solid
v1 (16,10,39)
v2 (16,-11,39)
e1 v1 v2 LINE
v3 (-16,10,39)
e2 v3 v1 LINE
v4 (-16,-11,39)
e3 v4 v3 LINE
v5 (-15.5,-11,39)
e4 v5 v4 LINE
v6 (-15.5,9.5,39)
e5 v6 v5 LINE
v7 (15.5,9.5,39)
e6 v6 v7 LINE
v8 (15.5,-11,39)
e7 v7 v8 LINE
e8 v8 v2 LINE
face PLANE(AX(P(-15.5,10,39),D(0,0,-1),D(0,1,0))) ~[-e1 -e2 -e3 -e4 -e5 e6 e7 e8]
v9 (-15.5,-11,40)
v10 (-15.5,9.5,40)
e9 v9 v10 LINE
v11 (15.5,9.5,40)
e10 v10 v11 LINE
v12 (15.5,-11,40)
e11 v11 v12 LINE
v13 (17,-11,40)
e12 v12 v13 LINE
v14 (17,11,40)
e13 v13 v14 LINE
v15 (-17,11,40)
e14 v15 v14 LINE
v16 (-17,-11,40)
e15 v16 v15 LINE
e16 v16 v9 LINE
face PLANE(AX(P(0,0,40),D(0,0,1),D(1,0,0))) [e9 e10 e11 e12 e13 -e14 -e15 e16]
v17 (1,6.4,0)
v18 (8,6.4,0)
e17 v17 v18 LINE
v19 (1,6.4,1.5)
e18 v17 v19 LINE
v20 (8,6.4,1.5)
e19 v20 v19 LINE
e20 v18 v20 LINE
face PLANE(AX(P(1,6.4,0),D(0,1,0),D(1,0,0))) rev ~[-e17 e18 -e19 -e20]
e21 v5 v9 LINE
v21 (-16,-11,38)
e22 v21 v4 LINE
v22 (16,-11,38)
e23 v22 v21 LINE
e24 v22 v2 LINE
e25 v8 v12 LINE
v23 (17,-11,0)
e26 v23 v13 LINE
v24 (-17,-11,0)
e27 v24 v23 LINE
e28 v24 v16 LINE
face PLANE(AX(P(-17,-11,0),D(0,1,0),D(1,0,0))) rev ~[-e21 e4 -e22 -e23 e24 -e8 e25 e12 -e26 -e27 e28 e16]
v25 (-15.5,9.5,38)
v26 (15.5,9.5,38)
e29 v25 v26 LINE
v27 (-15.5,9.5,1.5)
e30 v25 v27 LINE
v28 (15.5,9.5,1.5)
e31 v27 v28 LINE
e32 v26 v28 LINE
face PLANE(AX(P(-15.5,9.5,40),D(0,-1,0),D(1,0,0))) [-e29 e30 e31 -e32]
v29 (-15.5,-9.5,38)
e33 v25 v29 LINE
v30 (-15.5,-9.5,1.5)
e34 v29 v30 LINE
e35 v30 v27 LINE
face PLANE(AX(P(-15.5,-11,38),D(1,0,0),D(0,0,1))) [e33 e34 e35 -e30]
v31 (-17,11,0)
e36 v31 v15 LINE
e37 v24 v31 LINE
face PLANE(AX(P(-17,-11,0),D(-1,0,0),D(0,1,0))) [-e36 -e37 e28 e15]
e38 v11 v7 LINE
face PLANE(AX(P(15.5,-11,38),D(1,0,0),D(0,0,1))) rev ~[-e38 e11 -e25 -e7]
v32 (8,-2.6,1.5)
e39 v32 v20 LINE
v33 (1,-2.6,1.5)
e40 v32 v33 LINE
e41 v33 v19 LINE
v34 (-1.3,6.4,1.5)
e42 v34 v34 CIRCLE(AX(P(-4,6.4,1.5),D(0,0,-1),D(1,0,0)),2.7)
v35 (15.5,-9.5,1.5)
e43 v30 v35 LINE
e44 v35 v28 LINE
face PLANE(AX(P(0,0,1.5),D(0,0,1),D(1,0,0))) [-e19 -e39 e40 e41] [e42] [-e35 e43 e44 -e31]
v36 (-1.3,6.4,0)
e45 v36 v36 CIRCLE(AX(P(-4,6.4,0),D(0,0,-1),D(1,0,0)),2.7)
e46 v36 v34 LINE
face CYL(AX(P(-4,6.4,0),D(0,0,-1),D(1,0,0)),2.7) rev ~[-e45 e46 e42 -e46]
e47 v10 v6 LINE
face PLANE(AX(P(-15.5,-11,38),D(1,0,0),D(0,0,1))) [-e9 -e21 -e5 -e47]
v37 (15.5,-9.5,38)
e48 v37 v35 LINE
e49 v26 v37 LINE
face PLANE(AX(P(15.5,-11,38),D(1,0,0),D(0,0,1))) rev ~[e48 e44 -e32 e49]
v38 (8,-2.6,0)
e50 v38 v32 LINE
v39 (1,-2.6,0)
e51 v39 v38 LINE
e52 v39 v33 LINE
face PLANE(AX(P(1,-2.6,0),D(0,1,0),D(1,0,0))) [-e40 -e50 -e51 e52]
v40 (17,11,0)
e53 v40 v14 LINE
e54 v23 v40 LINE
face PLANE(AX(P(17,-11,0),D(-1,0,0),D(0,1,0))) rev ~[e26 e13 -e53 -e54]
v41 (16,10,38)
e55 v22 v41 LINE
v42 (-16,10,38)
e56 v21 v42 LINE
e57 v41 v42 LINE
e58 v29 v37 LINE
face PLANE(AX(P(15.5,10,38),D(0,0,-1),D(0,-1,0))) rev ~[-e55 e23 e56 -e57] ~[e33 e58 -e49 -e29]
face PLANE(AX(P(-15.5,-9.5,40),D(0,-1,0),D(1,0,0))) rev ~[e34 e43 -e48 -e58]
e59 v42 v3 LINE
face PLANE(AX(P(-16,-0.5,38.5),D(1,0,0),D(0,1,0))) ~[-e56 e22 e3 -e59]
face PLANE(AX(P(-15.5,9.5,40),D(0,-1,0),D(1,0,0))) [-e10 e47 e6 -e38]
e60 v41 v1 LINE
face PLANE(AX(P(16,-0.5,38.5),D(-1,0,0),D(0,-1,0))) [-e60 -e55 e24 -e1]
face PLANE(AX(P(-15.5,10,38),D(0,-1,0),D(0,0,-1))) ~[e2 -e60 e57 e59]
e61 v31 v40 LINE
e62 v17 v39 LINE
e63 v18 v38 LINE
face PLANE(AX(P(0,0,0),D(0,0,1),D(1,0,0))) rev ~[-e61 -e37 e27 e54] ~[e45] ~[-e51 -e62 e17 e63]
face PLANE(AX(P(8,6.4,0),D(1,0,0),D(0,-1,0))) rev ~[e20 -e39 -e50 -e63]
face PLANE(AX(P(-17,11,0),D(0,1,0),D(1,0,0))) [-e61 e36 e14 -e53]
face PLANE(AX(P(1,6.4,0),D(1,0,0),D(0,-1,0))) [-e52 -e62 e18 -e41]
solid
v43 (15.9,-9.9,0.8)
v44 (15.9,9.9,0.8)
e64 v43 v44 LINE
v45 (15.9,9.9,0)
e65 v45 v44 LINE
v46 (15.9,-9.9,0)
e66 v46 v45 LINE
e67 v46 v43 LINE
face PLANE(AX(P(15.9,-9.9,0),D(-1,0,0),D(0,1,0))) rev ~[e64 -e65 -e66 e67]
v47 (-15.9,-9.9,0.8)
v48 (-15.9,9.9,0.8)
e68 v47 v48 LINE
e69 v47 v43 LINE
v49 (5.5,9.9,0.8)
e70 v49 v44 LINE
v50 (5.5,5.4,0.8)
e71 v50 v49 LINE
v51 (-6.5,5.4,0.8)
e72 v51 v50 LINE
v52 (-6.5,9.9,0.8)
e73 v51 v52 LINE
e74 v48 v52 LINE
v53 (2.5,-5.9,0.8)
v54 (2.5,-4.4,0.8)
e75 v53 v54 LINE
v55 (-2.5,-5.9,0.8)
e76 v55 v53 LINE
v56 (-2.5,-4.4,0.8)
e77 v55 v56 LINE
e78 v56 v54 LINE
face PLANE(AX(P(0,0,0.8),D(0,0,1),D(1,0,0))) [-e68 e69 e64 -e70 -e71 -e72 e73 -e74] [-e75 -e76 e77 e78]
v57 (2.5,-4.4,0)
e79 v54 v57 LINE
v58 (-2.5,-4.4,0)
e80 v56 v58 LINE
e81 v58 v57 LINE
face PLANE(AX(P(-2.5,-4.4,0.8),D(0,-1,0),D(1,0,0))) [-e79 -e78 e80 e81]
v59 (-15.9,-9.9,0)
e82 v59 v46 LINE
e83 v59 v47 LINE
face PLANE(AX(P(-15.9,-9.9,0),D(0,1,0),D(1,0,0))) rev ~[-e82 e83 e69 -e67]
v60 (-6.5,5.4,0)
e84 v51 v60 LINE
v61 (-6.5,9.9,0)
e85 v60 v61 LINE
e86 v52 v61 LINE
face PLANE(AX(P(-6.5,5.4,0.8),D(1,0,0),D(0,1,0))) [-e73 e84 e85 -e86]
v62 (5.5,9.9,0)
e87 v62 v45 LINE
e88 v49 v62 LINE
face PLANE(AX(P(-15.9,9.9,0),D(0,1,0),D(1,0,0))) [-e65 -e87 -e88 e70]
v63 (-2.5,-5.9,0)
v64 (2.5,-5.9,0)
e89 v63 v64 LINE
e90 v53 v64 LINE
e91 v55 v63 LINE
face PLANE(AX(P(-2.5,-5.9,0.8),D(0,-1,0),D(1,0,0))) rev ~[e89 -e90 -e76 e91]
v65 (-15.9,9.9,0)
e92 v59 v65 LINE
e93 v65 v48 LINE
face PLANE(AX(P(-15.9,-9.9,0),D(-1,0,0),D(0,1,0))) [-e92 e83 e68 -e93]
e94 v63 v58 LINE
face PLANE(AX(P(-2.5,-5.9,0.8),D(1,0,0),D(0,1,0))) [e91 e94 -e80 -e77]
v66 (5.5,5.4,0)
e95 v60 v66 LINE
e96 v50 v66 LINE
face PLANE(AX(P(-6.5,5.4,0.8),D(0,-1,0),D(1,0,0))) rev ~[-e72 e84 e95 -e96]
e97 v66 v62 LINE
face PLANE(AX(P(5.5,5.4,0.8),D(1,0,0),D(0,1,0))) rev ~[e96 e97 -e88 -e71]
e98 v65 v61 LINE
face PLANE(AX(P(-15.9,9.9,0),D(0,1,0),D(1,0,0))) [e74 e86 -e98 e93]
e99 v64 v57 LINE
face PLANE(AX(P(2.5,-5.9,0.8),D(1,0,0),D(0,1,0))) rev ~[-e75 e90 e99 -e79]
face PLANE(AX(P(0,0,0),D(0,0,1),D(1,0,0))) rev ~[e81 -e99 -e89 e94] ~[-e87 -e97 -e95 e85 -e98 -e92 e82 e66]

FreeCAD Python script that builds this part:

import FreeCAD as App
import Part
import Sketcher

doc = App.newDocument("Part")
body = doc.addObject("PartDesign::Body", "Body")

# Sketch on XY plane
sketch1 = doc.addObject("Sketcher::SketchObject", "Sketch")
body.addObject(sketch1)
sketch1.AttachmentSupport = (doc.XY_Plane, [""])
sketch1.MapMode = "FlatFace"
sketch1.addGeometry([
    Part.LineSegment(App.Vector(-17, 11, 0), App.Vector(-17, -11, 0)),
    Part.LineSegment(App.Vector(-17, -11, 0), App.Vector(17, -11, 0)),
    Part.LineSegment(App.Vector(17, -11, 0), App.Vector(17, 11, 0)),
    Part.LineSegment(App.Vector(17, 11, 0), App.Vector(-17, 11, 0)),
], False)
sketch1.addConstraint([
    Sketcher.Constraint("Coincident", 0, 2, 1, 1),
    Sketcher.Constraint("Coincident", 1, 2, 2, 1),
    Sketcher.Constraint("Coincident", 2, 2, 3, 1),
    Sketcher.Constraint("Coincident", 3, 2, 0, 1),
    Sketcher.Constraint("Vertical", 0),
    Sketcher.Constraint("Horizontal", 1),
    Sketcher.Constraint("Vertical", 2),
    Sketcher.Constraint("Horizontal", 3),
    Sketcher.Constraint("Symmetric", 0, 2, 2, 2, -1, 1),
    Sketcher.Constraint("DistanceX", 1, 1, 1, 2, 34.0),
    Sketcher.Constraint("DistanceY", 0, 2, 0, 1, 22.0),
])
pad1 = doc.addObject("PartDesign::Pad", "Pad")
body.addObject(pad1)
pad1.Profile = sketch1
pad1.Length = 40

# Sketch on XY plane
sketch2 = doc.addObject("Sketcher::SketchObject", "Sketch001")
body.addObject(sketch2)
sketch2.AttachmentSupport = (doc.XY_Plane, [""])
sketch2.MapMode = "FlatFace"
sketch2.AttachmentOffset = App.Placement(App.Vector(0, 0, 40), App.Rotation())
sketch2.addGeometry([
    Part.LineSegment(App.Vector(-16, 10, 0), App.Vector(-16, -10, 0)),
    Part.LineSegment(App.Vector(-16, -10, 0), App.Vector(16, -10, 0)),
    Part.LineSegment(App.Vector(16, -10, 0), App.Vector(16, 10, 0)),
    Part.LineSegment(App.Vector(16, 10, 0), App.Vector(-16, 10, 0)),
], False)
sketch2.addConstraint([
    Sketcher.Constraint("Coincident", 0, 2, 1, 1),
    Sketcher.Constraint("Coincident", 1, 2, 2, 1),
    Sketcher.Constraint("Coincident", 2, 2, 3, 1),
    Sketcher.Constraint("Coincident", 3, 2, 0, 1),
    Sketcher.Constraint("Vertical", 0),
    Sketcher.Constraint("Horizontal", 1),
    Sketcher.Constraint("Vertical", 2),
    Sketcher.Constraint("Horizontal", 3),
    Sketcher.Constraint("Symmetric", 0, 2, 2, 2, -1, 1),
    Sketcher.Constraint("DistanceX", 1, 1, 1, 2, 31.0),
    Sketcher.Constraint("DistanceY", 0, 2, 0, 1, 19.0),
])
pocket1 = doc.addObject("PartDesign::Pocket", "Pocket")
body.addObject(pocket1)
pocket1.Profile = sketch2
pocket1.Length = 38.5

# Sketch on XY plane
sketch3 = doc.addObject("Sketcher::SketchObject", "Sketch002")
body.addObject(sketch3)
sketch3.AttachmentSupport = (doc.XY_Plane, [""])
sketch3.MapMode = "FlatFace"
sketch3.addGeometry([
    Part.Circle(App.Vector(-4, 6.4, 0), App.Vector(0, 0, 1), 2.7),  # 0
    Part.LineSegment(App.Vector(1, -2.6, 0), App.Vector(1, 6.4, 0)),  # 1
    Part.LineSegment(App.Vector(1, 6.4, 0), App.Vector(8, 6.4, 0)),  # 2
    Part.LineSegment(App.Vector(8, 6.4, 0), App.Vector(8, -2.6, 0)),  # 3
    Part.LineSegment(App.Vector(8, -2.6, 0), App.Vector(1, -2.6, 0)),  # 4
], False)
sketch3.addConstraint([
    Sketcher.Constraint("Coincident", 1, 2, 2, 1),
    Sketcher.Constraint("Coincident", 2, 2, 3, 1),
    Sketcher.Constraint("Coincident", 3, 2, 4, 1),
    Sketcher.Constraint("Coincident", 4, 2, 1, 1),
    Sketcher.Constraint("Vertical", 1),
    Sketcher.Constraint("Horizontal", 2),
    Sketcher.Constraint("Vertical", 3),
    Sketcher.Constraint("Horizontal", 4),
    Sketcher.Constraint("Horizontal", 0, 3, 1, 2),
    Sketcher.Constraint("Diameter", 0, 5.4),
    Sketcher.Constraint("DistanceX", 2, 1, 2, 2, 7.0),
    Sketcher.Constraint("DistanceY", 1, 1, 1, 2, 9.0),
    Sketcher.Constraint("DistanceX", 0, 3, -1, 1, 4.0),
    Sketcher.Constraint("DistanceX", -1, 1, 1, 2, 1.0),
    Sketcher.Constraint("DistanceY", -1, 1, 0, 3, 6.4),
])
pocket2 = doc.addObject("PartDesign::Pocket", "Pocket001")
body.addObject(pocket2)
pocket2.Profile = sketch3
pocket2.Type = "ThroughAll"
pocket2.Reversed = True

# Sketch on XZ plane
sketch4 = doc.addObject("Sketcher::SketchObject", "Sketch003")
body.addObject(sketch4)
sketch4.AttachmentSupport = (doc.XZ_Plane, [""])
sketch4.MapMode = "FlatFace"
sketch4.AttachmentOffset = App.Placement(App.Vector(0, 0, 11), App.Rotation())
sketch4.addGeometry([
    Part.LineSegment(App.Vector(-15.5, 40, 0), App.Vector(-15.5, 38, 0)),
    Part.LineSegment(App.Vector(-15.5, 38, 0), App.Vector(15.5, 38, 0)),
    Part.LineSegment(App.Vector(15.5, 38, 0), App.Vector(15.5, 40, 0)),
    Part.LineSegment(App.Vector(15.5, 40, 0), App.Vector(-15.5, 40, 0)),
], False)
sketch4.addConstraint([
    Sketcher.Constraint("Coincident", 0, 2, 1, 1),
    Sketcher.Constraint("Coincident", 1, 2, 2, 1),
    Sketcher.Constraint("Coincident", 2, 2, 3, 1),
    Sketcher.Constraint("Coincident", 3, 2, 0, 1),
    Sketcher.Constraint("Vertical", 0),
    Sketcher.Constraint("Horizontal", 1),
    Sketcher.Constraint("Vertical", 2),
    Sketcher.Constraint("Horizontal", 3),
    Sketcher.Constraint("DistanceX", 1, 1, 1, 2, 31.0),
    Sketcher.Constraint("DistanceY", 0, 2, 0, 1, 2.0),
    Sketcher.Constraint("DistanceY", -1, 1, 0, 2, 38.0),
    Sketcher.Constraint("DistanceX", 0, 2, -1, 1, 15.5),
])
pocket3 = doc.addObject("PartDesign::Pocket", "Pocket002")
body.addObject(pocket3)
pocket3.Profile = sketch4
pocket3.Length = 1.5

# Sketch on YZ plane
sketch5 = doc.addObject("Sketcher::SketchObject", "Sketch004")
body.addObject(sketch5)
sketch5.AttachmentSupport = (doc.YZ_Plane, [""])
sketch5.MapMode = "FlatFace"
sketch5.AttachmentOffset = App.Placement(App.Vector(0, 0, 15.5), App.Rotation())
sketch5.addGeometry([
    Part.LineSegment(App.Vector(10, 39, 0), App.Vector(10, 38, 0)),
    Part.LineSegment(App.Vector(10, 38, 0), App.Vector(-11, 38, 0)),
    Part.LineSegment(App.Vector(-11, 38, 0), App.Vector(-11, 39, 0)),
    Part.LineSegment(App.Vector(-11, 39, 0), App.Vector(10, 39, 0)),
], False)
sketch5.addConstraint([
    Sketcher.Constraint("Coincident", 0, 2, 1, 1),
    Sketcher.Constraint("Coincident", 1, 2, 2, 1),
    Sketcher.Constraint("Coincident", 2, 2, 3, 1),
    Sketcher.Constraint("Coincident", 3, 2, 0, 1),
    Sketcher.Constraint("Vertical", 0),
    Sketcher.Constraint("Horizontal", 1),
    Sketcher.Constraint("Vertical", 2),
    Sketcher.Constraint("Horizontal", 3),
    Sketcher.Constraint("DistanceX", 1, 2, 1, 1, 21.0),
    Sketcher.Constraint("DistanceY", 0, 2, 0, 1, 1.0),
    Sketcher.Constraint("DistanceX", -1, 1, 0, 2, 10.0),
    Sketcher.Constraint("DistanceY", -1, 1, 0, 2, 38.0),
])
pocket4 = doc.addObject("PartDesign::Pocket", "Pocket003")
body.addObject(pocket4)
pocket4.Profile = sketch5
pocket4.Length = 0.5
pocket4.Reversed = True
doc.recompute()

mirrored = doc.addObject("PartDesign::Mirrored", "Mirrored")
body.addObject(mirrored)
mirrored.Originals = [pocket4]
mirrored.MirrorPlane = (doc.YZ_Plane, [""])
body.Tip = mirrored

# Sketch on XZ plane
sketch6 = doc.addObject("Sketcher::SketchObject", "Sketch005")
body.addObject(sketch6)
sketch6.AttachmentSupport = (doc.XZ_Plane, [""])
sketch6.MapMode = "FlatFace"
sketch6.AttachmentOffset = App.Placement(App.Vector(0, 0, -9.5), App.Rotation())
sketch6.addGeometry([
    Part.LineSegment(App.Vector(-16, 39, 0), App.Vector(-16, 38, 0)),
    Part.LineSegment(App.Vector(-16, 38, 0), App.Vector(16, 38, 0)),
    Part.LineSegment(App.Vector(16, 38, 0), App.Vector(16, 39, 0)),
    Part.LineSegment(App.Vector(16, 39, 0), App.Vector(-16, 39, 0)),
], False)
sketch6.addConstraint([
    Sketcher.Constraint("Coincident", 0, 2, 1, 1),
    Sketcher.Constraint("Coincident", 1, 2, 2, 1),
    Sketcher.Constraint("Coincident", 2, 2, 3, 1),
    Sketcher.Constraint("Coincident", 3, 2, 0, 1),
    Sketcher.Constraint("Vertical", 0),
    Sketcher.Constraint("Horizontal", 1),
    Sketcher.Constraint("Vertical", 2),
    Sketcher.Constraint("Horizontal", 3),
    Sketcher.Constraint("DistanceX", 1, 1, 1, 2, 32.0),
    Sketcher.Constraint("DistanceY", 0, 2, 0, 1, 1.0),
    Sketcher.Constraint("DistanceX", 0, 2, -1, 1, 16.0),
    Sketcher.Constraint("DistanceY", -1, 1, 0, 2, 38.0),
])
pocket5 = doc.addObject("PartDesign::Pocket", "Pocket004")
body.addObject(pocket5)
pocket5.Profile = sketch6
pocket5.Length = 0.5
body2 = doc.addObject("PartDesign::Body", "Body001")

# Sketch on XY plane
sketch7 = doc.addObject("Sketcher::SketchObject", "Sketch006")
body2.addObject(sketch7)
sketch7.AttachmentSupport = (doc.getObject("XY_Plane001"), [""])
sketch7.MapMode = "FlatFace"
sketch7.addGeometry([
    Part.LineSegment(App.Vector(-16, 10, 0), App.Vector(-16, -10, 0)),
    Part.LineSegment(App.Vector(-16, -10, 0), App.Vector(16, -10, 0)),
    Part.LineSegment(App.Vector(16, -10, 0), App.Vector(16, 10, 0)),
    Part.LineSegment(App.Vector(16, 10, 0), App.Vector(-16, 10, 0)),
], False)
sketch7.addConstraint([
    Sketcher.Constraint("Coincident", 0, 2, 1, 1),
    Sketcher.Constraint("Coincident", 1, 2, 2, 1),
    Sketcher.Constraint("Coincident", 2, 2, 3, 1),
    Sketcher.Constraint("Coincident", 3, 2, 0, 1),
    Sketcher.Constraint("Vertical", 0),
    Sketcher.Constraint("Horizontal", 1),
    Sketcher.Constraint("Vertical", 2),
    Sketcher.Constraint("Horizontal", 3),
    Sketcher.Constraint("Symmetric", 0, 2, 2, 2, -1, 1),
    Sketcher.Constraint("DistanceX", 1, 1, 1, 2, 31.8),
    Sketcher.Constraint("DistanceY", 0, 2, 0, 1, 19.8),
])
pad2 = doc.addObject("PartDesign::Pad", "Pad001")
body2.addObject(pad2)
pad2.Profile = sketch7
pad2.Length = 0.8

# Sketch on XY plane
sketch8 = doc.addObject("Sketcher::SketchObject", "Sketch007")
body2.addObject(sketch8)
sketch8.AttachmentSupport = (doc.getObject("XY_Plane001"), [""])
sketch8.MapMode = "FlatFace"
sketch8.AttachmentOffset = App.Placement(App.Vector(0, 0, 0.8), App.Rotation())
sketch8.addGeometry([
    Part.LineSegment(App.Vector(-6.5, 9.9, 0), App.Vector(-6.5, 5.4, 0)),
    Part.LineSegment(App.Vector(-6.5, 5.4, 0), App.Vector(5.5, 5.4, 0)),
    Part.LineSegment(App.Vector(5.5, 5.4, 0), App.Vector(5.5, 9.9, 0)),
    Part.LineSegment(App.Vector(5.5, 9.9, 0), App.Vector(-6.5, 9.9, 0)),
], False)
sketch8.addConstraint([
    Sketcher.Constraint("Coincident", 0, 2, 1, 1),
    Sketcher.Constraint("Coincident", 1, 2, 2, 1),
    Sketcher.Constraint("Coincident", 2, 2, 3, 1),
    Sketcher.Constraint("Coincident", 3, 2, 0, 1),
    Sketcher.Constraint("Vertical", 0),
    Sketcher.Constraint("Horizontal", 1),
    Sketcher.Constraint("Vertical", 2),
    Sketcher.Constraint("Horizontal", 3),
    Sketcher.Constraint("DistanceX", 1, 1, 1, 2, 12.0),
    Sketcher.Constraint("DistanceY", 0, 2, 0, 1, 4.5),
    Sketcher.Constraint("DistanceX", 0, 2, -1, 1, 6.5),
    Sketcher.Constraint("DistanceY", -1, 1, 0, 2, 5.4),
])
pocket6 = doc.addObject("PartDesign::Pocket", "Pocket005")
body2.addObject(pocket6)
pocket6.Profile = sketch8
pocket6.Type = "ThroughAll"

# Sketch on XY plane
sketch9 = doc.addObject("Sketcher::SketchObject", "Sketch008")
body2.addObject(sketch9)
sketch9.AttachmentSupport = (doc.getObject("XY_Plane001"), [""])
sketch9.MapMode = "FlatFace"
sketch9.AttachmentOffset = App.Placement(App.Vector(0, 0, 0.8), App.Rotation())
sketch9.addGeometry([
    Part.LineSegment(App.Vector(-2.5, -4.4, 0), App.Vector(-2.5, -5.9, 0)),
    Part.LineSegment(App.Vector(-2.5, -5.9, 0), App.Vector(2.5, -5.9, 0)),
    Part.LineSegment(App.Vector(2.5, -5.9, 0), App.Vector(2.5, -4.4, 0)),
    Part.LineSegment(App.Vector(2.5, -4.4, 0), App.Vector(-2.5, -4.4, 0)),
], False)
sketch9.addConstraint([
    Sketcher.Constraint("Coincident", 0, 2, 1, 1),
    Sketcher.Constraint("Coincident", 1, 2, 2, 1),
    Sketcher.Constraint("Coincident", 2, 2, 3, 1),
    Sketcher.Constraint("Coincident", 3, 2, 0, 1),
    Sketcher.Constraint("Vertical", 0),
    Sketcher.Constraint("Horizontal", 1),
    Sketcher.Constraint("Vertical", 2),
    Sketcher.Constraint("Horizontal", 3),
    Sketcher.Constraint("DistanceX", 1, 1, 1, 2, 5.0),
    Sketcher.Constraint("DistanceY", 0, 2, 0, 1, 1.5),
    Sketcher.Constraint("DistanceX", 0, 2, -1, 1, 2.5),
    Sketcher.Constraint("DistanceY", 0, 2, -1, 1, 5.9),
])
pocket7 = doc.addObject("PartDesign::Pocket", "Pocket006")
body2.addObject(pocket7)
pocket7.Profile = sketch9
pocket7.Type = "ThroughAll"

doc.recompute()
